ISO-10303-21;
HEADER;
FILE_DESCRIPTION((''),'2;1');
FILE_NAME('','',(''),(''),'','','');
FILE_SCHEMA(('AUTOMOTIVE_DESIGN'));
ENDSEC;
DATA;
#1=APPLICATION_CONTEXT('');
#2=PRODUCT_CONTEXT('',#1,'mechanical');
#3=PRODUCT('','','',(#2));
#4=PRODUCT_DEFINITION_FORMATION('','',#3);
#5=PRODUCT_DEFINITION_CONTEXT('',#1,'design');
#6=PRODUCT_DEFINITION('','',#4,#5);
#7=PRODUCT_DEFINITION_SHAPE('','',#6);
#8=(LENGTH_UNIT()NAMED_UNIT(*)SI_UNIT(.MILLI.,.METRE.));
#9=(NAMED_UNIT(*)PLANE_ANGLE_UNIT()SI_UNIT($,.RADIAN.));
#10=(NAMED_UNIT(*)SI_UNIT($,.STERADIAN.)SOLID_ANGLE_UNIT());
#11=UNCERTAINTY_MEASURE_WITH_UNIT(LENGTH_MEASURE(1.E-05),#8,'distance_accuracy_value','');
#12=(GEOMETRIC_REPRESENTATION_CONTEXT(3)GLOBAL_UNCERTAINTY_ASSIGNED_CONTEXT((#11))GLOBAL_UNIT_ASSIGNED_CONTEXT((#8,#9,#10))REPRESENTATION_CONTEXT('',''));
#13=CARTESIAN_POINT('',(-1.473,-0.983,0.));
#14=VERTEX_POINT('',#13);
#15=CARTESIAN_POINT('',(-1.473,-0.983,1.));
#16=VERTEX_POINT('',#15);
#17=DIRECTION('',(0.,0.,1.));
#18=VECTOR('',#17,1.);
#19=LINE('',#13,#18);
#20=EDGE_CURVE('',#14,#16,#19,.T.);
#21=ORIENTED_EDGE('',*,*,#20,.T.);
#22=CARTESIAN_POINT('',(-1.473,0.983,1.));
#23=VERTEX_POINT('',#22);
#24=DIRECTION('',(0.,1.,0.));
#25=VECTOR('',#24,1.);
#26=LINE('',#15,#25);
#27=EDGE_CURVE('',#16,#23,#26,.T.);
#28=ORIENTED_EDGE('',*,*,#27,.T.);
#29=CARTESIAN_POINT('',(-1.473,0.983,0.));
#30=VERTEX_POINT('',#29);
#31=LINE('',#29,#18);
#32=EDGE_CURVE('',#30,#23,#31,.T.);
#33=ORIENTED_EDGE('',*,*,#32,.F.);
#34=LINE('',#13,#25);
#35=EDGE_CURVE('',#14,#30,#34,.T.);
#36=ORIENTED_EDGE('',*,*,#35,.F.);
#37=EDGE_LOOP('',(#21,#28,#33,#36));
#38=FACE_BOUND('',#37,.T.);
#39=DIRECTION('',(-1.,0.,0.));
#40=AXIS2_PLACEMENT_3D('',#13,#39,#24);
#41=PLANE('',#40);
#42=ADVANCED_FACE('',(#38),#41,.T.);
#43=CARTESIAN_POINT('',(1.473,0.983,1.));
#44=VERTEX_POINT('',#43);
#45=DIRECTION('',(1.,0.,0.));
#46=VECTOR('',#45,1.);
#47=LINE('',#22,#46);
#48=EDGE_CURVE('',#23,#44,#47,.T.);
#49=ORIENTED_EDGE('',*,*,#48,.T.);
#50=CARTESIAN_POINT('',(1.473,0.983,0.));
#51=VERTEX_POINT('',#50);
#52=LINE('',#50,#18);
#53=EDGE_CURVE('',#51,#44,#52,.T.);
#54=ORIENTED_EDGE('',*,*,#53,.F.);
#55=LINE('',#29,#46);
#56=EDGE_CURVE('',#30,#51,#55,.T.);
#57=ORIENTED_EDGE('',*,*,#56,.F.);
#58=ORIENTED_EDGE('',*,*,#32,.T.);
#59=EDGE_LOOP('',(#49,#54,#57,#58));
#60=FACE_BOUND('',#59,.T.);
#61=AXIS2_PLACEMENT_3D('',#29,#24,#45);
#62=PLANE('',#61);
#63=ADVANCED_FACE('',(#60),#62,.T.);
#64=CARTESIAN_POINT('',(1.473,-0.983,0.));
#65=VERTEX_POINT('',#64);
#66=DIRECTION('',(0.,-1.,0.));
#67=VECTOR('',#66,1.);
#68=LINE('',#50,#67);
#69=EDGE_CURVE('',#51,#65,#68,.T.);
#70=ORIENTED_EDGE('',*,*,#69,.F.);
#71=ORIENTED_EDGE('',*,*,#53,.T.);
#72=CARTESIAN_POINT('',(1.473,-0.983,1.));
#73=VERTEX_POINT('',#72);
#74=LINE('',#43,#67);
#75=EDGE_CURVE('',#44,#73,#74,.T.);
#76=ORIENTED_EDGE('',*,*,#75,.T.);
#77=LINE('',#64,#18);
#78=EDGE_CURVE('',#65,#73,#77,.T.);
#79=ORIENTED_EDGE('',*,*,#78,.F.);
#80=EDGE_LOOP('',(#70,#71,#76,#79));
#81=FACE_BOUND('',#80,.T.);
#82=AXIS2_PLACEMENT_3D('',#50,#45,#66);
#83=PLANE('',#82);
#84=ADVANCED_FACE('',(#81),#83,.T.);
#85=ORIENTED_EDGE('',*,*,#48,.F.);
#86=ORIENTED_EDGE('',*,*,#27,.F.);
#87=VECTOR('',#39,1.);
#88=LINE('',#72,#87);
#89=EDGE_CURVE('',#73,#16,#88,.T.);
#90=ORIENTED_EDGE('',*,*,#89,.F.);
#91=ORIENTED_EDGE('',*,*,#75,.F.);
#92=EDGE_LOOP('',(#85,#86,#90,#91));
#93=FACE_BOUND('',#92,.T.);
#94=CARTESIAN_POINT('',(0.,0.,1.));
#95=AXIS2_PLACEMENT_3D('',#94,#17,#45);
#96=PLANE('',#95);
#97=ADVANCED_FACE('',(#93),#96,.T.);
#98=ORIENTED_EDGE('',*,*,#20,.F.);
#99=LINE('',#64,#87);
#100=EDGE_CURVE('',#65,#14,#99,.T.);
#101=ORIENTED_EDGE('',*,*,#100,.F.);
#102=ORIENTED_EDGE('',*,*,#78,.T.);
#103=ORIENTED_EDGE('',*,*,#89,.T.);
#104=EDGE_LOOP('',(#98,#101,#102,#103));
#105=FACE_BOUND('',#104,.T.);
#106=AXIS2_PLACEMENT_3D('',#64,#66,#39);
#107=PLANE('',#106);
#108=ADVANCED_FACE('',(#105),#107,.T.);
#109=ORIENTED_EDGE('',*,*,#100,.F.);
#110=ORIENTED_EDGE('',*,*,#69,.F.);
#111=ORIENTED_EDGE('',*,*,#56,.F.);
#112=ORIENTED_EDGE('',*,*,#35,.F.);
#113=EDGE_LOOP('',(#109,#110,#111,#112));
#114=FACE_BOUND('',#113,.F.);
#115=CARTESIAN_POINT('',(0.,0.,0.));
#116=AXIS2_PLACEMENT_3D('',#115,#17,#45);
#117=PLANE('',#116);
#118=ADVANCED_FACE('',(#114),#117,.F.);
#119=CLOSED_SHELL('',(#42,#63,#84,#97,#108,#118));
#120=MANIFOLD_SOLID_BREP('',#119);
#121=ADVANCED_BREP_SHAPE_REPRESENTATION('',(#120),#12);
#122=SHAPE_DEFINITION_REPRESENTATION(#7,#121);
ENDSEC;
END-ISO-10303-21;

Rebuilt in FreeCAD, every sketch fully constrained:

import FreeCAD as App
import Part
import Sketcher

doc = App.newDocument("Part")
params = doc.addObject("Spreadsheet::Sheet", "Params")
for row, (alias, value) in enumerate([
    ("pad1_length", "1 mm"),
], start=1):
    params.set(f"A{row}", alias)
    params.set(f"B{row}", "=" + value)
    params.setAlias(f"B{row}", alias)

body = doc.addObject("PartDesign::Body", "Body")

# Sketch on XY plane
sketch1 = body.newObject("Sketcher::SketchObject", "Sketch")
sketch1.AttachmentSupport = (doc.getObject("XY_Plane"), [""])
sketch1.MapMode = "FlatFace"
sketch1.addGeometry([
    Part.LineSegment(App.Vector(1.473, 0.983, 0), App.Vector(-1.473, 0.983, 0)),
    Part.LineSegment(App.Vector(-1.473, 0.983, 0), App.Vector(-1.473, -0.983, 0)),
    Part.LineSegment(App.Vector(-1.473, -0.983, 0), App.Vector(1.473, -0.983, 0)),
    Part.LineSegment(App.Vector(1.473, -0.983, 0), App.Vector(1.473, 0.983, 0)),
], False)
sketch1.addConstraint([
    Sketcher.Constraint("Coincident", 0, 2, 1, 1),
    Sketcher.Constraint("Coincident", 1, 2, 2, 1),
    Sketcher.Constraint("Coincident", 2, 2, 3, 1),
    Sketcher.Constraint("Coincident", 3, 2, 0, 1),
    Sketcher.Constraint("Horizontal", 0),
    Sketcher.Constraint("Vertical", 1),
    Sketcher.Constraint("Horizontal", 2),
    Sketcher.Constraint("Vertical", 3),
    Sketcher.Constraint("Symmetric", 0, 2, 2, 2, -1, 1),
    Sketcher.Constraint("DistanceX", 0, 2, 0, 1, 2.946),
    Sketcher.Constraint("DistanceY", 1, 2, 1, 1, 1.966),
])
pad1 = body.newObject("PartDesign::Pad", "Pad")
pad1.Profile = sketch1
pad1.setExpression("Length", "Params.pad1_length")

doc.recompute()
